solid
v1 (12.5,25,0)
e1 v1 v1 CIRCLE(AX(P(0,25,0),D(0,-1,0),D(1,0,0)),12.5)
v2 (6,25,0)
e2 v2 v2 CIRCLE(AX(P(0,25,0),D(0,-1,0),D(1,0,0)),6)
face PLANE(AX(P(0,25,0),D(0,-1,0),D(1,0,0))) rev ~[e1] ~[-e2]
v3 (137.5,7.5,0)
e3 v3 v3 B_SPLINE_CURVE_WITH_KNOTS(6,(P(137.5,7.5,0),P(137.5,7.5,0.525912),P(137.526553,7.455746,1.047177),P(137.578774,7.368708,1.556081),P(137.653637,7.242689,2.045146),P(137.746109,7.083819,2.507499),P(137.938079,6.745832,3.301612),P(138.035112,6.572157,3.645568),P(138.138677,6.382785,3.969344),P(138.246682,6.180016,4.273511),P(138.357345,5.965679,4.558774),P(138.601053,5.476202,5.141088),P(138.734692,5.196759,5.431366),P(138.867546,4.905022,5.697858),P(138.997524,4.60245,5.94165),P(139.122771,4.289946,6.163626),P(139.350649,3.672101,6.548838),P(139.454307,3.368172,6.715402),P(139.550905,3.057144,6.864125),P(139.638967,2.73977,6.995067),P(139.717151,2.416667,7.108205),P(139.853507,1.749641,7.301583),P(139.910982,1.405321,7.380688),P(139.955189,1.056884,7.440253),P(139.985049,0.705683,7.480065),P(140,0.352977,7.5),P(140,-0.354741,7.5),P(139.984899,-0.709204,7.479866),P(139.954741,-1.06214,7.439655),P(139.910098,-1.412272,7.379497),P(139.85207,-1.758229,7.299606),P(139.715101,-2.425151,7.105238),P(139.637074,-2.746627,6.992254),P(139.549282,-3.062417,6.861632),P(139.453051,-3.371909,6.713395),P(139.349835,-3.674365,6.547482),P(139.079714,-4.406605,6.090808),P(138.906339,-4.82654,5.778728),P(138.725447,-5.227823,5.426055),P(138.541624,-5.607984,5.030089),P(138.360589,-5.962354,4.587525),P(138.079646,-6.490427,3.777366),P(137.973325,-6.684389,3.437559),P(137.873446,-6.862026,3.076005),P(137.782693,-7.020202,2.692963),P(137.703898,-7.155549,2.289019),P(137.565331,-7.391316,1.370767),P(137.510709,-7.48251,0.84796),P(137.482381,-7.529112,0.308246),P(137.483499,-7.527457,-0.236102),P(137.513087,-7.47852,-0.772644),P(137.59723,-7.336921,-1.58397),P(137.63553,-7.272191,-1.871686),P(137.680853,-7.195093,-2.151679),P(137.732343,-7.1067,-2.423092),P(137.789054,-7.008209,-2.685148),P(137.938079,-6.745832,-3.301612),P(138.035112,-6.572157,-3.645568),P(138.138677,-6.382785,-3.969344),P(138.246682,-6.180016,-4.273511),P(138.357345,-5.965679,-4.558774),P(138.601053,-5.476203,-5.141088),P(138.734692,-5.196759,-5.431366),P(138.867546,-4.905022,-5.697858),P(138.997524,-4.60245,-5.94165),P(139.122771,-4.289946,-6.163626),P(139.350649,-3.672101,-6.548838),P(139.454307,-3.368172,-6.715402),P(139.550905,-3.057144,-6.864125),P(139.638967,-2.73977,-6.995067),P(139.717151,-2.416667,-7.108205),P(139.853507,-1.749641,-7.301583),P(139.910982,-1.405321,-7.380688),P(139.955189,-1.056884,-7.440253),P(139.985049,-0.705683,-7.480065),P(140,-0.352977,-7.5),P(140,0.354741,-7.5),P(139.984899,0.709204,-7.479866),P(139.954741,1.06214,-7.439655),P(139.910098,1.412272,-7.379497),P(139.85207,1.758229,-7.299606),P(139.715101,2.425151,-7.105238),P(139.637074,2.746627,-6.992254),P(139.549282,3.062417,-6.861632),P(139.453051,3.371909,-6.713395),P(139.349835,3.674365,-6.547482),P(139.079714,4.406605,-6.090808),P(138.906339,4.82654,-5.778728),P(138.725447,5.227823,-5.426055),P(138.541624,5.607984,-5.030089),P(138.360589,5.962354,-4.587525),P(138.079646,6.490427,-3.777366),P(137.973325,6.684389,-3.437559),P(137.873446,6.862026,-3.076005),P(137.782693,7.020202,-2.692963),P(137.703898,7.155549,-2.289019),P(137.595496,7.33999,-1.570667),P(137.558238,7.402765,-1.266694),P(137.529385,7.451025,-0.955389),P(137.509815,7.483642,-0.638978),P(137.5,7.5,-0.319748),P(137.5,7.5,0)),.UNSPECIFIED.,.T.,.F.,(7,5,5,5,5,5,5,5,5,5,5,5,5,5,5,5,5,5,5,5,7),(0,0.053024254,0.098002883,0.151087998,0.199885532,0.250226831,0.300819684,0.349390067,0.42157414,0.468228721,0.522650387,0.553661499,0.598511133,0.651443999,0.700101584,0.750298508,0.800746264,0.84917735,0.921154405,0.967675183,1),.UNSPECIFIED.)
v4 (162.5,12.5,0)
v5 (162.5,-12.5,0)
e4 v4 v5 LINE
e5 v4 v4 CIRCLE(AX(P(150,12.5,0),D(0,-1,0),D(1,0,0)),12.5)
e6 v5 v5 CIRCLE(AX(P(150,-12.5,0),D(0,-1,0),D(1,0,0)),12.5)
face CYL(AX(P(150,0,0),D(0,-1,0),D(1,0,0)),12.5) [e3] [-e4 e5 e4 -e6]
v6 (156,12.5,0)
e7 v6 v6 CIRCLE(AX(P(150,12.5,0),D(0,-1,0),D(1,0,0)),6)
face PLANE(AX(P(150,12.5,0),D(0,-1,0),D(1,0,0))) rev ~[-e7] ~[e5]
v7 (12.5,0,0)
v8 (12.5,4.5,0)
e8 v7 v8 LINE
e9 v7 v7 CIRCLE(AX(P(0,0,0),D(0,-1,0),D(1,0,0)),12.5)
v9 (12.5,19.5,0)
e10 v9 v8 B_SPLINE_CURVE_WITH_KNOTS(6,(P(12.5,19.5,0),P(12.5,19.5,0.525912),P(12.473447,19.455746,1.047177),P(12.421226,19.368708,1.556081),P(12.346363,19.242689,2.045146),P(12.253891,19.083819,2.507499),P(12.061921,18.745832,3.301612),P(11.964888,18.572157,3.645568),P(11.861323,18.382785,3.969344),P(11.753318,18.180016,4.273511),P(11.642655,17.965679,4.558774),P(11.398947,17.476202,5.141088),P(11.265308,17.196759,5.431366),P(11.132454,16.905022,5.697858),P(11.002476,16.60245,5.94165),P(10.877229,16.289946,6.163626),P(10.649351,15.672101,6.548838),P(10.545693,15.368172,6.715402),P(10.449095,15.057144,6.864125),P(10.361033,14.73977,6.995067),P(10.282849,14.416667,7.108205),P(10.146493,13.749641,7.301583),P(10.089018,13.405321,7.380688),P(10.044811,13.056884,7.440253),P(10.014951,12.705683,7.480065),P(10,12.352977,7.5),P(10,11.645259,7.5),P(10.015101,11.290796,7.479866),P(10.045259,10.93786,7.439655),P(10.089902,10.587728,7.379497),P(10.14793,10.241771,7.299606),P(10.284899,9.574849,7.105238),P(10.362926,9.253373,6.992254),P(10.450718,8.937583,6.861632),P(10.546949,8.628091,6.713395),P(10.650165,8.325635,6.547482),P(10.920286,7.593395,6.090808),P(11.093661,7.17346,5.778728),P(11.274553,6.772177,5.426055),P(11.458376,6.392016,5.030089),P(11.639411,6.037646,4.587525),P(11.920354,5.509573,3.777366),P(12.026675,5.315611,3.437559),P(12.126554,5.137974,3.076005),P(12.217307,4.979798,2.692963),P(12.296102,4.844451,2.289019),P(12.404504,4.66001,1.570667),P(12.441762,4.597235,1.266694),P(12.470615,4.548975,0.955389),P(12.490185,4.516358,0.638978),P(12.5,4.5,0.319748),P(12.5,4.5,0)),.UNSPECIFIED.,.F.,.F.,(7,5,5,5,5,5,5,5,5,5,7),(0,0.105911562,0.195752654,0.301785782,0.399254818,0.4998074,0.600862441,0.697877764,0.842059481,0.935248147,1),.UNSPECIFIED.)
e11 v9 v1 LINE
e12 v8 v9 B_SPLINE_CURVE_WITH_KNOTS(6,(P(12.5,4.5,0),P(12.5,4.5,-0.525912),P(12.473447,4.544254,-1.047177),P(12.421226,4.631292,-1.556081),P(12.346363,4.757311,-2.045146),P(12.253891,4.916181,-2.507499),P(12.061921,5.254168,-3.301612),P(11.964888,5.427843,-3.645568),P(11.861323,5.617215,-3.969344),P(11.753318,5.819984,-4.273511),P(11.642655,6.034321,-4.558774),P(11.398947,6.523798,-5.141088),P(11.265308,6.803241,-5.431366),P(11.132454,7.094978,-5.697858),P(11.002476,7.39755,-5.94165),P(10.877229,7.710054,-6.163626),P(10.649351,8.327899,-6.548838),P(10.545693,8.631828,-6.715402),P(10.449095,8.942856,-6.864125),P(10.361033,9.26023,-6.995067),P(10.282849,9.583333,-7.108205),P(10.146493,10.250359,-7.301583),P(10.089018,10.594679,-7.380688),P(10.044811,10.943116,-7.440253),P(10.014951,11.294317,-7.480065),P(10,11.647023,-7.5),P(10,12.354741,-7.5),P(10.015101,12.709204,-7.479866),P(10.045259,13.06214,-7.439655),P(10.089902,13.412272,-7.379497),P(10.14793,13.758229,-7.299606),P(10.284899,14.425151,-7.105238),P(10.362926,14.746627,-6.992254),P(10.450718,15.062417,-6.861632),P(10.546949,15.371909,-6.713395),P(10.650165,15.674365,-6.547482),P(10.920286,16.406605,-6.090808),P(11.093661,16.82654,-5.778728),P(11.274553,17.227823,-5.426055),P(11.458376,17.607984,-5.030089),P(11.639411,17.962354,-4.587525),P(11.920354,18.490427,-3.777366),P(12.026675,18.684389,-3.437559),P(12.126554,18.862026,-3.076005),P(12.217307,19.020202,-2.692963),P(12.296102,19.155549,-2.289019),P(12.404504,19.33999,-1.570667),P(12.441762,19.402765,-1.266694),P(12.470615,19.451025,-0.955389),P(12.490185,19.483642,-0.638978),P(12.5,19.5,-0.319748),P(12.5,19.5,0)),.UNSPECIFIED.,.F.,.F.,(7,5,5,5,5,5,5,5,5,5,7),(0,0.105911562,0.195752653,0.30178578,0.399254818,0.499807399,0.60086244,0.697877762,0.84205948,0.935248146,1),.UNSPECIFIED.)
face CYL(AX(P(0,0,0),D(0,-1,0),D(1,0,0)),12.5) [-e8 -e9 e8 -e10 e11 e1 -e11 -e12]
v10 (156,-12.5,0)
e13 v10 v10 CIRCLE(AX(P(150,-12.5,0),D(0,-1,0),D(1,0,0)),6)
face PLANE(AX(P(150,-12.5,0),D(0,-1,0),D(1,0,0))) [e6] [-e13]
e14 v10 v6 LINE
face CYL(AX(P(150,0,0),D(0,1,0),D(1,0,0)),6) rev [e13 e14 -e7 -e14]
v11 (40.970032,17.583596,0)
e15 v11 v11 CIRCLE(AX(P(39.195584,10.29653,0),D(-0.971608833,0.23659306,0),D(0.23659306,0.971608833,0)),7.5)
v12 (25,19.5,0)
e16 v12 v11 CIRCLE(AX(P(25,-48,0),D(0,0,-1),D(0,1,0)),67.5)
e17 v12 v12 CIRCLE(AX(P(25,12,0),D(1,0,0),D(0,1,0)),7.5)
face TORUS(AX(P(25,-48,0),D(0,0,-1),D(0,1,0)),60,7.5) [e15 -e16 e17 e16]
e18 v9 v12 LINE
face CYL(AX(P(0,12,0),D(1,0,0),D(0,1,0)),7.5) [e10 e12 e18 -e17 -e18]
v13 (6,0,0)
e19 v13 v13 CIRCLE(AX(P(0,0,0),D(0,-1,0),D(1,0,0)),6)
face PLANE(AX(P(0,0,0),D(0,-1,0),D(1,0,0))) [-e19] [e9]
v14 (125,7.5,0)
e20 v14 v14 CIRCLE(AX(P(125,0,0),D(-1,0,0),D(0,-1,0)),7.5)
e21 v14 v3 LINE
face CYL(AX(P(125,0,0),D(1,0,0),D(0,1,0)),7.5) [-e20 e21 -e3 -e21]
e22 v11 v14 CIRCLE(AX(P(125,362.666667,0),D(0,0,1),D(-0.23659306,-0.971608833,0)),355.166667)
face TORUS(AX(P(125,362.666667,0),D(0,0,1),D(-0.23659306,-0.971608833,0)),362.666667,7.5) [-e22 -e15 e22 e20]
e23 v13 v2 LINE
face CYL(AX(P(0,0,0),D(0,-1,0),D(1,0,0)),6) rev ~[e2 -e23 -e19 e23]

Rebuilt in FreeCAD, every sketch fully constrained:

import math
import FreeCAD as App
import Part
import Sketcher

V = App.Vector

doc = App.newDocument("Part")
body = doc.addObject("PartDesign::Body", "Body")

# Sketch on YZ plane
sketch1 = body.newObject("Sketcher::SketchObject", "Sketch")
sketch1.AttachmentSupport = (doc.getObject("YZ_Plane"), [""])
sketch1.MapMode = "FlatFace"
sketch1.addGeometry(Part.Circle(V(12, 0, 0), V(0, 0, 1), 7.5), False)
sketch1.addConstraint([
    Sketcher.Constraint("PointOnObject", 0, 3, -1),
    Sketcher.Constraint("Diameter", 0, 15.0),
    Sketcher.Constraint("DistanceX", -1, 1, 0, 3, 12.0),
])

# Sketch on XY plane
sketch2 = body.newObject("Sketcher::SketchObject", "Sketch001")
sketch2.AttachmentSupport = (doc.getObject("XY_Plane"), [""])
sketch2.MapMode = "FlatFace"
sketch2.addGeometry([
    Part.LineSegment(V(0, 12, 0), V(25, 12, 0)),
    Part.ArcOfCircle(Part.Circle(V(25, -48, 0), V(0, 0, 1), 60), math.radians(76.314453), math.radians(90)),
    Part.ArcOfCircle(Part.Circle(V(125, 362.666667, 0), V(0, 0, 1), 362.666667), math.radians(-103.685547), math.radians(-90)),
    Part.LineSegment(V(125, 0, 0), V(150, 0, 0)),
], False)
sketch2.addConstraint([
    Sketcher.Constraint("Tangent", 0, 2, 1, 2),
    Sketcher.Constraint("Tangent", 1, 1, 2, 1),
    Sketcher.Constraint("Tangent", 2, 2, 3, 1),
    Sketcher.Constraint("Horizontal", 0),
    Sketcher.Constraint("Horizontal", 3),
    Sketcher.Constraint("PointOnObject", 0, 1, -2),
    Sketcher.Constraint("PointOnObject", 2, 2, -1),
    Sketcher.Constraint("Equal", 0, 3),
    Sketcher.Constraint("Radius", 1, 60.0),
    Sketcher.Constraint("DistanceX", 0, 1, 0, 2, 25.0),
    Sketcher.Constraint("DistanceY", 1, 3, -1, 1, 48.0),
    Sketcher.Constraint("DistanceX", -1, 1, 2, 3, 125.0),
])
doc.recompute()

additivepipe = body.newObject("PartDesign::AdditivePipe", "AdditivePipe")
additivepipe.Profile = sketch1
additivepipe.Spine = (sketch2, ["Edge1", "Edge2", "Edge3", "Edge4"])

# Sketch on XZ plane
sketch3 = body.newObject("Sketcher::SketchObject", "Sketch002")
sketch3.AttachmentSupport = (doc.getObject("XZ_Plane"), [""])
sketch3.MapMode = "FlatFace"
sketch3.addGeometry(Part.Circle(V(150, 0, 0), V(0, 0, 1), 6), False)
sketch3.addConstraint([
    Sketcher.Constraint("PointOnObject", 0, 3, -1),
    Sketcher.Constraint("Diameter", 0, 12.0),
    Sketcher.Constraint("DistanceX", -1, 1, 0, 3, 150.0),
])
pocket1 = body.newObject("PartDesign::Pocket", "Pocket")
pocket1.Profile = sketch3
pocket1.Length = 25
pocket1.Midplane = True

# Sketch on XZ plane
sketch4 = body.newObject("Sketcher::SketchObject", "Sketch003")
sketch4.AttachmentSupport = (doc.getObject("XZ_Plane"), [""])
sketch4.MapMode = "FlatFace"
sketch4.addGeometry([
    Part.Circle(V(150, 0, 0), V(0, 0, 1), 12.5),
    Part.Circle(V(150, 0, 0), V(0, 0, 1), 6),
], False)
sketch4.addConstraint([
    Sketcher.Constraint("Coincident", 1, 3, 0, 3),
    Sketcher.Constraint("PointOnObject", 0, 3, -1),
    Sketcher.Constraint("Diameter", 0, 25.0),
    Sketcher.Constraint("Diameter", 1, 12.0),
    Sketcher.Constraint("DistanceX", -1, 1, 0, 3, 150.0),
])
pad1 = body.newObject("PartDesign::Pad", "Pad")
pad1.Profile = sketch4
pad1.Length = 25
pad1.Midplane = True

# Sketch on XZ plane
sketch5 = body.newObject("Sketcher::SketchObject", "Sketch004")
sketch5.AttachmentSupport = (doc.getObject("XZ_Plane"), [""])
sketch5.MapMode = "FlatFace"
sketch5.addGeometry([
    Part.Circle(V(0, 0, 0), V(0, 0, 1), 12.5),
    Part.Circle(V(0, 0, 0), V(0, 0, 1), 6),
], False)
sketch5.addConstraint([
    Sketcher.Constraint("Coincident", 0, 3, -1, 1),
    Sketcher.Constraint("Coincident", 1, 3, -1, 1),
    Sketcher.Constraint("Diameter", 0, 25.0),
    Sketcher.Constraint("Diameter", 1, 12.0),
])
pad2 = body.newObject("PartDesign::Pad", "Pad001")
pad2.Profile = sketch5
pad2.Length = 25
pad2.Reversed = True

# Sketch on XZ plane
sketch6 = body.newObject("Sketcher::SketchObject", "Sketch005")
sketch6.AttachmentSupport = (doc.getObject("XZ_Plane"), [""])
sketch6.MapMode = "FlatFace"
sketch6.addGeometry(Part.Circle(V(0, 0, 0), V(0, 0, 1), 6), False)
sketch6.addConstraint([
    Sketcher.Constraint("Coincident", 0, 3, -1, 1),
    Sketcher.Constraint("Diameter", 0, 12.0),
])
pocket2 = body.newObject("PartDesign::Pocket", "Pocket001")
pocket2.Profile = sketch6
pocket2.Type = "ThroughAll"

doc.recompute()
